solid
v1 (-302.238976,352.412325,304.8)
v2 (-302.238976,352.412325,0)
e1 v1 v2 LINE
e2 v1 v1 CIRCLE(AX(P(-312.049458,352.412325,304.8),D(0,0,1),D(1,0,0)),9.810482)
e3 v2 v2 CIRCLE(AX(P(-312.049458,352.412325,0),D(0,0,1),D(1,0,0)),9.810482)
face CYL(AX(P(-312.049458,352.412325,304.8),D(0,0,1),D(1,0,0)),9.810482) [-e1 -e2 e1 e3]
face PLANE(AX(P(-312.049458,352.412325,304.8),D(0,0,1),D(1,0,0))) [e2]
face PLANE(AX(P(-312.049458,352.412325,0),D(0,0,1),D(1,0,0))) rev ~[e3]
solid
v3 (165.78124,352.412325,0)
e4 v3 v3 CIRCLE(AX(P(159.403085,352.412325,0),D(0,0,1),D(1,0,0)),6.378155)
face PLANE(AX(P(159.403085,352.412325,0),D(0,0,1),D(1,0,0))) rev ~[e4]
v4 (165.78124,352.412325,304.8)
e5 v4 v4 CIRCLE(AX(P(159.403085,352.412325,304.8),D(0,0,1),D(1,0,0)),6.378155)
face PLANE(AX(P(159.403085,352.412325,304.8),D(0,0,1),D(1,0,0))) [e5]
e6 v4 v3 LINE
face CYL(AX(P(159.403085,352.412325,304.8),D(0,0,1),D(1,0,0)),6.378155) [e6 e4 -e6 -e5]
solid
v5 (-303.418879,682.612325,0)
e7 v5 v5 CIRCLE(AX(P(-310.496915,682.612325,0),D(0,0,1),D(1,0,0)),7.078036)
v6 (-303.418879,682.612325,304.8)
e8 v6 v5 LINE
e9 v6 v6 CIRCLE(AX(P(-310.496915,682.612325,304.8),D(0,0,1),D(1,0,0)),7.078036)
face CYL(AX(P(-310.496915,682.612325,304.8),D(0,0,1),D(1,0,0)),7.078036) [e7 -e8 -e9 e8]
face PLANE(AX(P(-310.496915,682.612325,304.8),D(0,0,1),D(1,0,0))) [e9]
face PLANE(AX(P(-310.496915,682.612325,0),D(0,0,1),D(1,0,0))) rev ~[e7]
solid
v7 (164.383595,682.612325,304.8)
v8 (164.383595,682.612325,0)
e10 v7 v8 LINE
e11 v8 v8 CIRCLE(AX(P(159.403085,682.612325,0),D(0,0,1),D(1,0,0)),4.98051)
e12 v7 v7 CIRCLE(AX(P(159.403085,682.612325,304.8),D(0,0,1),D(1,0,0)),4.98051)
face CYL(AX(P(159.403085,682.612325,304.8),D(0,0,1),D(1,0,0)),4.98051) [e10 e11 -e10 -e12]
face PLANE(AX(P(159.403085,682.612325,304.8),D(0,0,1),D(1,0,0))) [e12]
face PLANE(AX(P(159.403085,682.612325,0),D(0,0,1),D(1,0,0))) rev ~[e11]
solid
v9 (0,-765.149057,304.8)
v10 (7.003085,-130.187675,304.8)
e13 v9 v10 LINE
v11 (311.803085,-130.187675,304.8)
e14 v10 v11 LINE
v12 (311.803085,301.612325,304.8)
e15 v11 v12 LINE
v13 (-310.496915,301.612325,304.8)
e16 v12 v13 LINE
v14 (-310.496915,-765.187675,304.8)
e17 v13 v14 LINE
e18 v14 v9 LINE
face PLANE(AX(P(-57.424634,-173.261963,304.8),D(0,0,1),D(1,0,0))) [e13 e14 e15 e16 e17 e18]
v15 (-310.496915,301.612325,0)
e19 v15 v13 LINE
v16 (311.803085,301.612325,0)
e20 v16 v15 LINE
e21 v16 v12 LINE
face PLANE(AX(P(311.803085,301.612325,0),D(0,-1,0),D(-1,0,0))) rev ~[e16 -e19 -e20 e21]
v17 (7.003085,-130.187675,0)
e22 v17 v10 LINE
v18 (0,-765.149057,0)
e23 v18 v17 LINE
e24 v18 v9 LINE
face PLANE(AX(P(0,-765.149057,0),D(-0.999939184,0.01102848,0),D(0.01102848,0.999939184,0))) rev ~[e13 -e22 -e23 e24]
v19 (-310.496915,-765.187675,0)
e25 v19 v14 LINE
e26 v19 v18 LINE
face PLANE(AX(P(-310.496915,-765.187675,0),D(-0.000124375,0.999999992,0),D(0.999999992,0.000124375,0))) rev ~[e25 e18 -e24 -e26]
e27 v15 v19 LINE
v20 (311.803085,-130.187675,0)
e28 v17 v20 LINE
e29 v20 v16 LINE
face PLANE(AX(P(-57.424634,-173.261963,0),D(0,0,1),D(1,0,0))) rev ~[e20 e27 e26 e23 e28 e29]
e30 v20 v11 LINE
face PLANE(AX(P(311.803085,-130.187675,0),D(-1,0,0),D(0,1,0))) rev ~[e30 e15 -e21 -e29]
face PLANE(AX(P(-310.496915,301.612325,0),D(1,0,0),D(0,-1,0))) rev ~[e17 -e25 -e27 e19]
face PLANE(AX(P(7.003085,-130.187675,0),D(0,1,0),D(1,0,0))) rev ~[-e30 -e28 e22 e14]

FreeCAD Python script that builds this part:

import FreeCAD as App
import Part
import Sketcher
from FreeCAD import Vector
Q = App.Units.Quantity


def add_polygon(sketch, points):
    """Adds a closed chain of lines whose ends are joined by coincident constraints."""
    first, n = sketch.GeometryCount, len(points)
    for a, b in zip(points, points[1:] + points[:1]):
        sketch.addGeometry(Part.LineSegment(App.Vector(*a, 0), App.Vector(*b, 0)), False)
    for i in range(n):
        sketch.addConstraint(Sketcher.Constraint("Coincident", first + i, 2, first + (i + 1) % n, 1))

doc = App.newDocument("Part")
body = doc.addObject("PartDesign::Body", "Body")

# Sketch on XY plane
sketch1 = body.newObject("Sketcher::SketchObject", "Sketch")
sketch1.AttachmentSupport = (doc.getObject("XY_Plane"), [""])
sketch1.MapMode = "FlatFace"
add_polygon(sketch1, [(312, 302), (-310, 302), (-310, -765), (0, -765), (7, -130), (312, -130)])  # lines 0-5
sketch1.addConstraint([
    Sketcher.Constraint("Horizontal", 0),
    Sketcher.Constraint("Vertical", 1),
    Sketcher.Constraint("Horizontal", 4),
    Sketcher.Constraint("Vertical", 5),
    Sketcher.Constraint("PointOnObject", 2, 2, -2),
    Sketcher.Constraint("DistanceX", 4, 1, 4, 2, Q("12 in")),
    Sketcher.Constraint("DistanceY", 1, 2, 1, 1, Q("42 in")),
    Sketcher.Constraint("DistanceY", 5, 1, 5, 2, Q("17 in")),
    Sketcher.Constraint("Distance", 3, Q("25 in")),
    Sketcher.Constraint("DistanceX", 0, 2, 0, 1, Q("24.5 in")),
    Sketcher.Constraint("DistanceY", 1, 2, 2, 2, 0.038618),
    Sketcher.Constraint("DistanceY", -1, 1, 0, 2, 301.612325),
])
pad1 = body.newObject("PartDesign::Pad", "Pad")
pad1.Profile = sketch1
pad1.Length = Q("12 in")
body2 = doc.addObject("PartDesign::Body", "Body001")
body2.AllowCompound = True

# Sketch on XY plane
sketch2 = body2.newObject("Sketcher::SketchObject", "Sketch001")
sketch2.AttachmentSupport = (doc.getObject("XY_Plane001"), [""])
sketch2.MapMode = "FlatFace"
sketch2.AttachmentOffset = App.Placement(Vector(0, 0, 12 * 25.4), App.Rotation())
sketch2.addGeometry([
    Part.Circle(Vector(-312, 352.4, 0), Vector(0, 0, 1), 9.8),
    Part.Circle(Vector(159.4, 352.4, 0), Vector(0, 0, 1), 6.4),
    Part.Circle(Vector(159.4, 682.6, 0), Vector(0, 0, 1), 5),
    Part.Circle(Vector(-310.5, 682.6, 0), Vector(0, 0, 1), 7.1),
], False)
sketch2.addConstraint([
    Sketcher.Constraint("Horizontal", 0, 3, 1, 3),
    Sketcher.Constraint("Horizontal", 2, 3, 3, 3),
    Sketcher.Constraint("Vertical", 1, 3, 2, 3),
    Sketcher.Constraint("DistanceY", 1, 3, 2, 3, Q("13 in")),
    Sketcher.Constraint("DistanceX", 3, 3, 2, 3, Q("18.5 in")),
    Sketcher.Constraint("Diameter", 1, 12.75631),
    Sketcher.Constraint("Diameter", 2, 9.96102),
    Sketcher.Constraint("Diameter", 0, 19.620964),
    Sketcher.Constraint("Diameter", 3, 14.156072),
    Sketcher.Constraint("DistanceX", 0, 3, -1, 1, 312.049458),
    Sketcher.Constraint("DistanceY", -1, 1, 0, 3, 352.412325),
    Sketcher.Constraint("DistanceX", -1, 1, 1, 3, 159.403085),
])
pad2 = body2.newObject("PartDesign::Pad", "Pad001")
pad2.Profile = sketch2
pad2.Length = Q("12 in")
pad2.Reversed = True

doc.recompute()
